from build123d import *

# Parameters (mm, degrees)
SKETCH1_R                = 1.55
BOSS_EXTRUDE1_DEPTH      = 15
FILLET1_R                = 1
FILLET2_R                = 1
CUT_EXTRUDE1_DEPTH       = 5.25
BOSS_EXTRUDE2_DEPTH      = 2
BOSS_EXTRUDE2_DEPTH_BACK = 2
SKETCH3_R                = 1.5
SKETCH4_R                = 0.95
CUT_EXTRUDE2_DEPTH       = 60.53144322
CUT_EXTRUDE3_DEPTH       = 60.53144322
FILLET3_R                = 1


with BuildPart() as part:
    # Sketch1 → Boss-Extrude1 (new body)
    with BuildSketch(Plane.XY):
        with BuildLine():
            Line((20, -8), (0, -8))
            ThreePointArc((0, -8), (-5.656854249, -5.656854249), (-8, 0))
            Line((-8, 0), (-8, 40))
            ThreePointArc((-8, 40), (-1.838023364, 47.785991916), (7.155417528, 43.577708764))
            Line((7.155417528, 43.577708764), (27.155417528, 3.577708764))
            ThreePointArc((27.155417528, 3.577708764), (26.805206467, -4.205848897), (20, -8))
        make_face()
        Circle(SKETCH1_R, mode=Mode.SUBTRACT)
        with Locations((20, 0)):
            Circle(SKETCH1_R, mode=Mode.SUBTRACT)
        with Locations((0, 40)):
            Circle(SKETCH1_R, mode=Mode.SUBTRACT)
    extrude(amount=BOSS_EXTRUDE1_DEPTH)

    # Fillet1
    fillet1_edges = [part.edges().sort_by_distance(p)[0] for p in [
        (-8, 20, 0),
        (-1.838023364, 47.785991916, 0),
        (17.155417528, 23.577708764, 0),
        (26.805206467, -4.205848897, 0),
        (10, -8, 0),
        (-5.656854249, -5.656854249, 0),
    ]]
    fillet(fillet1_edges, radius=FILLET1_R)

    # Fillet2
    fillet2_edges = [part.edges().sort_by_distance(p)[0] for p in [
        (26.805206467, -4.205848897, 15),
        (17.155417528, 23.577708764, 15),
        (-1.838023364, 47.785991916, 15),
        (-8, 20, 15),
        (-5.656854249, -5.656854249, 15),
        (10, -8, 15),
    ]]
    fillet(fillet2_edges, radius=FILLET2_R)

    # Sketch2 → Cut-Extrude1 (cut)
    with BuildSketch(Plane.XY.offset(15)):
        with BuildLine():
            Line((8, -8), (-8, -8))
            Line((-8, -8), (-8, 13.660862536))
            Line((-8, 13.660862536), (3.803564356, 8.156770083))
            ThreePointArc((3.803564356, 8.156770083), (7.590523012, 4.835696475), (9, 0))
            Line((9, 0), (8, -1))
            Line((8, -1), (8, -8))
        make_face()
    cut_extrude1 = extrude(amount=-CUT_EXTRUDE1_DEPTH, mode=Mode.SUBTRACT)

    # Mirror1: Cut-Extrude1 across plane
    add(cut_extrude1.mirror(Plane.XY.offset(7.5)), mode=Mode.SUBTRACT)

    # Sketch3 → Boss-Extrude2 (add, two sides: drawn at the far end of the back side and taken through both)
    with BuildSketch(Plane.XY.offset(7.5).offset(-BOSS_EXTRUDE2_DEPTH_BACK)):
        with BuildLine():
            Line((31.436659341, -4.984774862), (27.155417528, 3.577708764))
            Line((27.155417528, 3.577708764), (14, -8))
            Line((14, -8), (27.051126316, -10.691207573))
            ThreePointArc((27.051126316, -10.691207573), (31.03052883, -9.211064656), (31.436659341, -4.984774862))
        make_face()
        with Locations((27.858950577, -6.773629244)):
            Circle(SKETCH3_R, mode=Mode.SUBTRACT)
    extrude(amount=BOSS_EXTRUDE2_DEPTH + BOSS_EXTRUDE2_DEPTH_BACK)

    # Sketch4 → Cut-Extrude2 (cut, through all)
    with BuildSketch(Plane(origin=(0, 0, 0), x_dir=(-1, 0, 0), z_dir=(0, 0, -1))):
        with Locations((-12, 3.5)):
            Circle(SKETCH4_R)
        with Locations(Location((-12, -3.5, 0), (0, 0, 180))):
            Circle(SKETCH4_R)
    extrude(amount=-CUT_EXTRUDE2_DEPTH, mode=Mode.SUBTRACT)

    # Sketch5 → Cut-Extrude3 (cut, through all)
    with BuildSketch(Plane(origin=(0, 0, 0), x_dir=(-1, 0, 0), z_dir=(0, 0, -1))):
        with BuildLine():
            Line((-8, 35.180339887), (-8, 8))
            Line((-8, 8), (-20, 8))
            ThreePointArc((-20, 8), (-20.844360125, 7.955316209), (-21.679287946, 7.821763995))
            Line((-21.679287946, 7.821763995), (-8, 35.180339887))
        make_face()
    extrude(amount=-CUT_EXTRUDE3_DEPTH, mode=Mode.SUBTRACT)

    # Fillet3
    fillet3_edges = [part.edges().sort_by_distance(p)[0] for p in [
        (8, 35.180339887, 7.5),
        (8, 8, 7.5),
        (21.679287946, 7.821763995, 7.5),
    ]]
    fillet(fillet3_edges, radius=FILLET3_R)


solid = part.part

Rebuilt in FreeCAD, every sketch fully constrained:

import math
import FreeCAD as App
import Part
import Sketcher

V = App.Vector
Q = App.Units.Quantity


def edges_at(feature, points):
    """Names of the edges that pass closest to the given points."""
    edges = feature.Shape.Edges
    near = lambda p: min(range(len(edges)), key=lambda i: edges[i].distToShape(Part.Vertex(*p))[0])
    return sorted({f"Edge{near(p) + 1}" for p in points})

doc = App.newDocument("Part")
params = doc.addObject("Spreadsheet::Sheet", "Params")
for row, (alias, value) in enumerate([
    ("sketch1_radius", "8 mm"),
    ("sketch1_diameter", "3.1 mm"),
    ("sketch1_width", "20 mm"),
    ("sketch1_height", "40 mm"),
    ("pad1_length", "15 mm"),
    ("fillet_radius", "1 mm"),
    ("fillet2_radius", "1 mm"),
    ("sketch2_radius", "9 mm"),
    ("sketch2_width", "16 mm"),
    ("sketch2_height", "7 mm"),
    ("pocket1_length", "5.25 mm"),
    ("sketch3_diameter", "3 mm"),
    ("sketch3_radius", "4 mm"),
    ("pad2_length", "2 mm"),
    ("pad2_length2", "2 mm"),
    ("sketch4_diameter", "1.9 mm"),
    ("sketch5_radius", "8 mm"),
    ("sketch5_width", "12 mm"),
    ("fillet3_radius", "1 mm"),
], start=1):
    params.set(f"A{row}", alias)
    params.set(f"B{row}", "=" + value)
    params.setAlias(f"B{row}", alias)

body = doc.addObject("PartDesign::Body", "Body")

# Sketch on XY plane
sketch1 = body.newObject("Sketcher::SketchObject", "Sketch")
sketch1.AttachmentSupport = (doc.getObject("XY_Plane"), [""])
sketch1.MapMode = "FlatFace"
sketch1.addGeometry([
    Part.LineSegment(V(0, -8, 0), V(20, -8, 0)),  # 0
    Part.ArcOfCircle(Part.Circle(V(20, 0, 0), V(0, 0, 1), 8), math.radians(-90), math.radians(27)),  # 1
    Part.LineSegment(V(27.2, 3.6, 0), V(7.2, 43.6, 0)),  # 2
    Part.ArcOfCircle(Part.Circle(V(0, 40, 0), V(0, 0, 1), 8), math.radians(27), math.radians(180)),  # 3
    Part.LineSegment(V(-8, 40, 0), V(-8, 0, 0)),  # 4
    Part.ArcOfCircle(Part.Circle(V(0, 0, 0), V(0, 0, 1), 8), math.radians(-180), math.radians(-90)),  # 5
    Part.Circle(V(20, 0, 0), V(0, 0, 1), 1.6),  # 6
    Part.Circle(V(0, 0, 0), V(0, 0, 1), 1.6),  # 7
    Part.Circle(V(0, 40, 0), V(0, 0, 1), 1.6),  # 8
], False)
sketch1.addConstraint([
    Sketcher.Constraint("Tangent", 0, 2, 1, 1),
    Sketcher.Constraint("Tangent", 1, 2, 2, 1),
    Sketcher.Constraint("Tangent", 2, 2, 3, 1),
    Sketcher.Constraint("Tangent", 3, 2, 4, 1),
    Sketcher.Constraint("Tangent", 4, 2, 5, 1),
    Sketcher.Constraint("Tangent", 5, 2, 0, 1),
    Sketcher.Constraint("Horizontal", 0),
    Sketcher.Constraint("Vertical", 4),
    Sketcher.Constraint("Coincident", 5, 3, -1, 1),
    Sketcher.Constraint("Coincident", 7, 3, -1, 1),
    Sketcher.Constraint("Coincident", 6, 3, 1, 3),
    Sketcher.Constraint("Coincident", 8, 3, 3, 3),
    Sketcher.Constraint("Equal", 1, 3),
    Sketcher.Constraint("Equal", 3, 5),
    Sketcher.Constraint("Equal", 6, 7),
    Sketcher.Constraint("Equal", 7, 8),
    Sketcher.Constraint("Radius", 1, 8.0),
    Sketcher.Constraint("Diameter", 6, 3.1),
    Sketcher.Constraint("DistanceX", 0, 1, 0, 2, 20.0),
    Sketcher.Constraint("DistanceY", 4, 2, 4, 1, 40.0),
])
sketch1.setExpression("Constraints[16]", "Params.sketch1_radius")
sketch1.setExpression("Constraints[17]", "Params.sketch1_diameter")
sketch1.setExpression("Constraints[18]", "Params.sketch1_width")
sketch1.setExpression("Constraints[19]", "Params.sketch1_height")
pad1 = body.newObject("PartDesign::Pad", "Pad")
pad1.Profile = sketch1
pad1.setExpression("Length", "Params.pad1_length")
doc.recompute()

fillet = body.newObject("PartDesign::Fillet", "Fillet")
fillet.Base = (pad1, edges_at(pad1, [
    (-8, 20, 0),
    (-1.838, 47.786, 0),
    (17.155, 23.578, 0),
    (26.805, -4.206, 0),
    (10, -8, 0),
    (-5.657, -5.657, 0),
]))
fillet.setExpression("Radius", "Params.fillet_radius")
doc.recompute()

fillet2 = body.newObject("PartDesign::Fillet", "Fillet001")
fillet2.Base = (fillet, edges_at(fillet, [
    (26.805, -4.206, 15),
    (17.155, 23.578, 15),
    (-1.838, 47.786, 15),
    (-8, 20, 15),
    (-5.657, -5.657, 15),
    (10, -8, 15),
]))
fillet2.setExpression("Radius", "Params.fillet2_radius")

# Sketch on XY plane
sketch2 = body.newObject("Sketcher::SketchObject", "Sketch001")
sketch2.AttachmentSupport = (doc.getObject("XY_Plane"), [""])
sketch2.MapMode = "FlatFace"
sketch2.AttachmentOffset = App.Placement(V(0, 0, 15), App.Rotation())
sketch2.addGeometry([
    Part.LineSegment(V(-8, -8, 0), V(8, -8, 0)),  # 0
    Part.LineSegment(V(8, -8, 0), V(8, -1, 0)),  # 1
    Part.LineSegment(V(8, -1, 0), V(9, 0, 0)),  # 2
    Part.ArcOfCircle(Part.Circle(V(0, 0, 0), V(0, 0, 1), 9), math.radians(0), math.radians(65)),  # 3
    Part.LineSegment(V(3.8, 8.2, 0), V(-8, 13.7, 0)),  # 4
    Part.LineSegment(V(-8, 13.7, 0), V(-8, -8, 0)),  # 5
], False)
sketch2.addConstraint([
    Sketcher.Constraint("Coincident", 0, 2, 1, 1),
    Sketcher.Constraint("Coincident", 1, 2, 2, 1),
    Sketcher.Constraint("Coincident", 2, 2, 3, 1),
    Sketcher.Constraint("Tangent", 3, 2, 4, 1),
    Sketcher.Constraint("Coincident", 4, 2, 5, 1),
    Sketcher.Constraint("Coincident", 5, 2, 0, 1),
    Sketcher.Constraint("Horizontal", 0),
    Sketcher.Constraint("Vertical", 1),
    Sketcher.Constraint("Vertical", 5),
    Sketcher.Constraint("Coincident", 3, 3, -1, 1),
    Sketcher.Constraint("PointOnObject", 2, 2, -1),
    Sketcher.Constraint("Radius", 3, 9.0),
    Sketcher.Constraint("DistanceX", 0, 1, 0, 2, 16.0),
    Sketcher.Constraint("DistanceY", 1, 1, 1, 2, 7.0),
    Sketcher.Constraint("Angle", 2, Q("45 deg")),
    Sketcher.Constraint("Angle", 4, Q("155 deg")),
    Sketcher.Constraint("DistanceX", -1, 1, 0, 2, 8.0),
])
sketch2.setExpression("Constraints[11]", "Params.sketch2_radius")
sketch2.setExpression("Constraints[12]", "Params.sketch2_width")
sketch2.setExpression("Constraints[13]", "Params.sketch2_height")
pocket1 = body.newObject("PartDesign::Pocket", "Pocket")
pocket1.Profile = sketch2
pocket1.setExpression("Length", "Params.pocket1_length")
doc.recompute()

datumplane = body.newObject("PartDesign::Plane", "DatumPlane")
datumplane.AttachmentSupport = (doc.getObject("XY_Plane"), [""])
datumplane.MapMode = "FlatFace"
datumplane.AttachmentOffset = App.Placement(V(0, 0, 7.5), App.Rotation())
mirrored = body.newObject("PartDesign::Mirrored", "Mirrored")
mirrored.Originals = [pocket1]
mirrored.MirrorPlane = (datumplane, [""])
body.Tip = mirrored

# Sketch on XY plane
sketch3 = body.newObject("Sketcher::SketchObject", "Sketch002")
sketch3.AttachmentSupport = (doc.getObject("XY_Plane"), [""])
sketch3.MapMode = "FlatFace"
sketch3.AttachmentOffset = App.Placement(V(0, 0, 7.5), App.Rotation())
sketch3.addGeometry([
    Part.LineSegment(V(31.4, -5, 0), V(27.2, 3.6, 0)),  # 0
    Part.LineSegment(V(27.2, 3.6, 0), V(14, -8, 0)),  # 1
    Part.LineSegment(V(14, -8, 0), V(27.1, -10.7, 0)),  # 2
    Part.ArcOfCircle(Part.Circle(V(27.9, -6.8, 0), V(0, 0, 1), 4), math.radians(-102), math.radians(27)),  # 3
    Part.Circle(V(27.9, -6.8, 0), V(0, 0, 1), 1.5),  # 4
], False)
sketch3.addConstraint([
    Sketcher.Constraint("Coincident", 0, 2, 1, 1),
    Sketcher.Constraint("Coincident", 1, 2, 2, 1),
    Sketcher.Constraint("Tangent", 2, 2, 3, 1),
    Sketcher.Constraint("Tangent", 3, 2, 0, 1),
    Sketcher.Constraint("Coincident", 4, 3, 3, 3),
    Sketcher.Constraint("Diameter", 4, 3.0),
    Sketcher.Constraint("Radius", 3, 4.0),
    Sketcher.Constraint("DistanceX", -1, 1, 1, 2, 14.0),
    Sketcher.Constraint("DistanceY", 1, 2, -1, 1, 8.0),
    Sketcher.Constraint("Distance", 2, 13.325708),
    Sketcher.Constraint("DistanceX", -1, 1, 3, 3, 27.858951),
    Sketcher.Constraint("DistanceY", -1, 1, 0, 2, 3.577709),
    Sketcher.Constraint("DistanceX", -1, 1, 3, 2, 31.436659),
])
sketch3.setExpression("Constraints[5]", "Params.sketch3_diameter")
sketch3.setExpression("Constraints[6]", "Params.sketch3_radius")
pad2 = body.newObject("PartDesign::Pad", "Pad001")
pad2.Profile = sketch3
pad2.Type = "TwoLengths"
pad2.setExpression("Length", "Params.pad2_length")
pad2.setExpression("Length2", "Params.pad2_length2")

# Sketch on XY plane
sketch4 = body.newObject("Sketcher::SketchObject", "Sketch003")
sketch4.AttachmentSupport = (doc.getObject("XY_Plane"), [""])
sketch4.MapMode = "FlatFace"
sketch4.addGeometry([
    Part.Circle(V(12, 3.5, 0), V(0, 0, 1), 0.9),
    Part.Circle(V(12, -3.5, 0), V(0, 0, 1), 0.9),
], False)
sketch4.addConstraint([
    Sketcher.Constraint("Equal", 0, 1),
    Sketcher.Constraint("Symmetric", 0, 3, 1, 3, -1),
    Sketcher.Constraint("Diameter", 0, 1.9),
    Sketcher.Constraint("DistanceX", -1, 1, 0, 3, 12.0),
    Sketcher.Constraint("DistanceY", 1, 3, 0, 3, 7.0),
])
sketch4.setExpression("Constraints[2]", "Params.sketch4_diameter")
pocket2 = body.newObject("PartDesign::Pocket", "Pocket001")
pocket2.Profile = sketch4
pocket2.Type = "ThroughAll"
pocket2.Reversed = True

# Sketch on XY plane
sketch5 = body.newObject("Sketcher::SketchObject", "Sketch004")
sketch5.AttachmentSupport = (doc.getObject("XY_Plane"), [""])
sketch5.MapMode = "FlatFace"
sketch5.addGeometry([
    Part.LineSegment(V(8, 8, 0), V(8, 35.2, 0)),
    Part.LineSegment(V(8, 35.2, 0), V(21.7, 7.8, 0)),
    Part.ArcOfCircle(Part.Circle(V(20, 0, 0), V(0, 0, 1), 8), math.radians(77.88), math.radians(90)),
    Part.LineSegment(V(20, 8, 0), V(8, 8, 0)),
], False)
sketch5.addConstraint([
    Sketcher.Constraint("Coincident", 0, 2, 1, 1),
    Sketcher.Constraint("Coincident", 1, 2, 2, 1),
    Sketcher.Constraint("Tangent", 2, 2, 3, 1),
    Sketcher.Constraint("Coincident", 3, 2, 0, 1),
    Sketcher.Constraint("Vertical", 0),
    Sketcher.Constraint("Horizontal", 3),
    Sketcher.Constraint("PointOnObject", 2, 3, -1),
    Sketcher.Constraint("Radius", 2, 8.0),
    Sketcher.Constraint("DistanceX", 3, 2, 3, 1, 12.0),
    Sketcher.Constraint("DistanceX", -1, 1, 2, 3, 20.0),
    Sketcher.Constraint("DistanceY", 0, 1, 0, 2, 27.18034),
    Sketcher.Constraint("Distance", 1, 30.587818),
])
sketch5.setExpression("Constraints[7]", "Params.sketch5_radius")
sketch5.setExpression("Constraints[8]", "Params.sketch5_width")
pocket3 = body.newObject("PartDesign::Pocket", "Pocket002")
pocket3.Profile = sketch5
pocket3.Type = "ThroughAll"
pocket3.Reversed = True
doc.recompute()

fillet3 = body.newObject("PartDesign::Fillet", "Fillet002")
fillet3.Base = (pocket3, edges_at(pocket3, [(8, 35.18, 7.5), (8, 8, 7.5), (21.679, 7.822, 7.5)]))
fillet3.setExpression("Radius", "Params.fillet3_radius")

doc.recompute()
